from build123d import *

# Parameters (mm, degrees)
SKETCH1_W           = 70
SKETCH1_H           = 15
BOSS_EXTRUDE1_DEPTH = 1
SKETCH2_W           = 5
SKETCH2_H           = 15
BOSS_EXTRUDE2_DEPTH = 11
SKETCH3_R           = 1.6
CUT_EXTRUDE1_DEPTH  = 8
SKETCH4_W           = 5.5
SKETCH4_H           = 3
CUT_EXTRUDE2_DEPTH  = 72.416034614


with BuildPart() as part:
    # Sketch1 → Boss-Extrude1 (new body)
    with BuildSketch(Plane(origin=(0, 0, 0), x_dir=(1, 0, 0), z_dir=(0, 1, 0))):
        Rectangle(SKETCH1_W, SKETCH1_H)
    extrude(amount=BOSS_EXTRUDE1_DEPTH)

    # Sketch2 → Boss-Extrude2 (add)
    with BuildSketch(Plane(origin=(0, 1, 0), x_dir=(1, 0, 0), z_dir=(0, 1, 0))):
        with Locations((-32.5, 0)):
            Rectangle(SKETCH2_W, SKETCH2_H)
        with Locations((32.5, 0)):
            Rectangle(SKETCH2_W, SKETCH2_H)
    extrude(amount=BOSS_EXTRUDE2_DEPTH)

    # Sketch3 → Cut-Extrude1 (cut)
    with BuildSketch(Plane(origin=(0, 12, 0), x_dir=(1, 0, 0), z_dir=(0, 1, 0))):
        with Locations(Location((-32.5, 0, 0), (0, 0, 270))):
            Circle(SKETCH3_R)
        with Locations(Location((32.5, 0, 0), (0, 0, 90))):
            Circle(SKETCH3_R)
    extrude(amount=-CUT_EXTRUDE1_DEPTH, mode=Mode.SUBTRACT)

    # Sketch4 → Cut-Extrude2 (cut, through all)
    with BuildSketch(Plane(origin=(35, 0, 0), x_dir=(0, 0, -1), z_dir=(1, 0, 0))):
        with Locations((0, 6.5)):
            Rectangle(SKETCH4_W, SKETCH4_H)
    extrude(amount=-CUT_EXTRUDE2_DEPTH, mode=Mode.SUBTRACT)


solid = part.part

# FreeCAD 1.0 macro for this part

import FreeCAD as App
import Part
import Sketcher
from FreeCAD import Vector
Q = App.Units.Quantity

doc = App.newDocument("Part")
body = doc.addObject("PartDesign::Body", "Body")

# Sketch on XZ plane
sketch1 = body.newObject("Sketcher::SketchObject", "Sketch")
sketch1.AttachmentSupport = (doc.getObject("XZ_Plane"), [""])
sketch1.MapMode = "FlatFace"
sketch1.addGeometry([
    Part.LineSegment(Vector(-35, -8, 0), Vector(-35, 8, 0)),
    Part.LineSegment(Vector(-35, 8, 0), Vector(35, 8, 0)),
    Part.LineSegment(Vector(35, 8, 0), Vector(35, -8, 0)),
    Part.LineSegment(Vector(35, -8, 0), Vector(-35, -8, 0)),
], False)
sketch1.addConstraint([
    Sketcher.Constraint("Coincident", 0, 2, 1, 1),
    Sketcher.Constraint("Coincident", 1, 2, 2, 1),
    Sketcher.Constraint("Coincident", 2, 2, 3, 1),
    Sketcher.Constraint("Coincident", 3, 2, 0, 1),
    Sketcher.Constraint("Vertical", 0),
    Sketcher.Constraint("Horizontal", 1),
    Sketcher.Constraint("Vertical", 2),
    Sketcher.Constraint("Horizontal", 3),
    Sketcher.Constraint("Symmetric", 0, 2, 2, 2, -1, 1),
    Sketcher.Constraint("DistanceX", 1, 1, 1, 2, Q("70 mm")),
    Sketcher.Constraint("DistanceY", 0, 1, 0, 2, Q("15 mm")),
])
pad1 = body.newObject("PartDesign::Pad", "Pad")
pad1.Profile = sketch1
pad1.Length = 1
pad1.Reversed = True

# Sketch on XZ plane
sketch2 = body.newObject("Sketcher::SketchObject", "Sketch001")
sketch2.AttachmentSupport = (doc.getObject("XZ_Plane"), [""])
sketch2.MapMode = "FlatFace"
sketch2.AttachmentOffset = App.Placement(Vector(0, 0, -1), App.Rotation())
sketch2.addGeometry([
    Part.LineSegment(Vector(-35, -8, 0), Vector(-35, 8, 0)),  # 0
    Part.LineSegment(Vector(-35, 8, 0), Vector(-30, 8, 0)),  # 1
    Part.LineSegment(Vector(-30, 8, 0), Vector(-30, -8, 0)),  # 2
    Part.LineSegment(Vector(-30, -8, 0), Vector(-35, -8, 0)),  # 3
    Part.LineSegment(Vector(30, -8, 0), Vector(30, 8, 0)),  # 4
    Part.LineSegment(Vector(30, 8, 0), Vector(35, 8, 0)),  # 5
    Part.LineSegment(Vector(35, 8, 0), Vector(35, -8, 0)),  # 6
    Part.LineSegment(Vector(35, -8, 0), Vector(30, -8, 0)),  # 7
], False)
sketch2.addConstraint([
    Sketcher.Constraint("Coincident", 0, 2, 1, 1),
    Sketcher.Constraint("Coincident", 1, 2, 2, 1),
    Sketcher.Constraint("Coincident", 2, 2, 3, 1),
    Sketcher.Constraint("Coincident", 3, 2, 0, 1),
    Sketcher.Constraint("Coincident", 4, 2, 5, 1),
    Sketcher.Constraint("Coincident", 5, 2, 6, 1),
    Sketcher.Constraint("Coincident", 6, 2, 7, 1),
    Sketcher.Constraint("Coincident", 7, 2, 4, 1),
    Sketcher.Constraint("Vertical", 0),
    Sketcher.Constraint("Horizontal", 1),
    Sketcher.Constraint("Vertical", 2),
    Sketcher.Constraint("Horizontal", 3),
    Sketcher.Constraint("Vertical", 4),
    Sketcher.Constraint("Horizontal", 5),
    Sketcher.Constraint("Vertical", 6),
    Sketcher.Constraint("Horizontal", 7),
    Sketcher.Constraint("Symmetric", 2, 2, 4, 2, -1, 1),
    Sketcher.Constraint("Symmetric", 0, 2, 6, 2, -1, 1),
    Sketcher.Constraint("Horizontal", 1, 2, 4, 2),
    Sketcher.Constraint("DistanceX", 1, 1, 1, 2, Q("5 mm")),
    Sketcher.Constraint("DistanceY", 0, 1, 0, 2, Q("15 mm")),
    Sketcher.Constraint("DistanceX", 0, 2, -1, 1, Q("35 mm")),
])
pad2 = body.newObject("PartDesign::Pad", "Pad001")
pad2.Profile = sketch2
pad2.Length = 11
pad2.Reversed = True

# Sketch on XZ plane
sketch3 = body.newObject("Sketcher::SketchObject", "Sketch002")
sketch3.AttachmentSupport = (doc.getObject("XZ_Plane"), [""])
sketch3.MapMode = "FlatFace"
sketch3.AttachmentOffset = App.Placement(Vector(0, 0, -12), App.Rotation())
sketch3.addGeometry([
    Part.Circle(Vector(-32.5, 0, 0), Vector(0, 0, 1), 1.6),
    Part.Circle(Vector(32.5, 0, 0), Vector(0, 0, 1), 1.6),
], False)
sketch3.addConstraint([
    Sketcher.Constraint("Equal", 0, 1),
    Sketcher.Constraint("Symmetric", 0, 3, 1, 3, -1, 1),
    Sketcher.Constraint("PointOnObject", 0, 3, -1),
    Sketcher.Constraint("Diameter", 0, Q("3.2 mm")),
    Sketcher.Constraint("DistanceX", 0, 3, 1, 3, Q("65 mm")),
])
pocket1 = body.newObject("PartDesign::Pocket", "Pocket")
pocket1.Profile = sketch3
pocket1.Length = 8
pocket1.Reversed = True

# Sketch on YZ plane
sketch4 = body.newObject("Sketcher::SketchObject", "Sketch003")
sketch4.AttachmentSupport = (doc.getObject("YZ_Plane"), [""])
sketch4.MapMode = "FlatFace"
sketch4.AttachmentOffset = App.Placement(Vector(0, 0, 35), App.Rotation())
sketch4.addGeometry([
    Part.LineSegment(Vector(8, 2.8, 0), Vector(5, 2.8, 0)),
    Part.LineSegment(Vector(5, 2.8, 0), Vector(5, -2.8, 0)),
    Part.LineSegment(Vector(5, -2.8, 0), Vector(8, -2.8, 0)),
    Part.LineSegment(Vector(8, -2.8, 0), Vector(8, 2.8, 0)),
], False)
sketch4.addConstraint([
    Sketcher.Constraint("Coincident", 0, 2, 1, 1),
    Sketcher.Constraint("Coincident", 1, 2, 2, 1),
    Sketcher.Constraint("Coincident", 2, 2, 3, 1),
    Sketcher.Constraint("Coincident", 3, 2, 0, 1),
    Sketcher.Constraint("Horizontal", 0),
    Sketcher.Constraint("Vertical", 1),
    Sketcher.Constraint("Horizontal", 2),
    Sketcher.Constraint("Vertical", 3),
    Sketcher.Constraint("DistanceX", 0, 2, 0, 1, Q("3 mm")),
    Sketcher.Constraint("DistanceY", 1, 2, 1, 1, Q("5.5 mm")),
    Sketcher.Constraint("DistanceX", -1, 1, 0, 2, Q("5 mm")),
    Sketcher.Constraint("DistanceY", -1, 1, 0, 2, Q("2.75 mm")),
])
pocket2 = body.newObject("PartDesign::Pocket", "Pocket001")
pocket2.Profile = sketch4
pocket2.Type = "ThroughAll"

doc.recompute()
